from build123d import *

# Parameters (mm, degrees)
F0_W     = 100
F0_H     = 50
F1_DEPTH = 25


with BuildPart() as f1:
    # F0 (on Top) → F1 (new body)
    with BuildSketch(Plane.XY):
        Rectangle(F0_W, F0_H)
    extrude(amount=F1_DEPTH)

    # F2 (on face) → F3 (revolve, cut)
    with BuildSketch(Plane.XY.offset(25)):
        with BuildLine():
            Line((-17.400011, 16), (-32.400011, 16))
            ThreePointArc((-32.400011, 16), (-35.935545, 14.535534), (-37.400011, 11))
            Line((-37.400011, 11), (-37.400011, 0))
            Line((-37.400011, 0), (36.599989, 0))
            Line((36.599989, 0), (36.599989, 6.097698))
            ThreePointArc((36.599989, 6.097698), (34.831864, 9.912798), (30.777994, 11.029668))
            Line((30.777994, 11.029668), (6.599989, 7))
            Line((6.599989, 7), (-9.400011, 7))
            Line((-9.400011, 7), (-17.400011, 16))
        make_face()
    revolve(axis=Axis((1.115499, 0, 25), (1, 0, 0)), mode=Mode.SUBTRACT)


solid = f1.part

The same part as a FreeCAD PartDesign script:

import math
import FreeCAD as App
import Part
import Sketcher

V = App.Vector
Q = App.Units.Quantity


def add_polygon(sketch, points):
    """Adds a closed chain of lines whose ends are joined by coincident constraints."""
    first, n = sketch.GeometryCount, len(points)
    for a, b in zip(points, points[1:] + points[:1]):
        sketch.addGeometry(Part.LineSegment(App.Vector(*a, 0), App.Vector(*b, 0)), False)
    for i in range(n):
        sketch.addConstraint(Sketcher.Constraint("Coincident", first + i, 2, first + (i + 1) % n, 1))

doc = App.newDocument("Part")
body = doc.addObject("PartDesign::Body", "Body")

sketch1 = body.newObject("Sketcher::SketchObject", "Sketch")
sketch1.AttachmentSupport = (doc.getObject("XY_Plane"), [""])
sketch1.MapMode = "FlatFace"
add_polygon(sketch1, [(-50, 25), (-50, -25), (50, -25), (50, 25)])
sketch1.addConstraint([
    Sketcher.Constraint("Vertical", 0),
    Sketcher.Constraint("Horizontal", 1),
    Sketcher.Constraint("Vertical", 2),
    Sketcher.Constraint("Horizontal", 3),
    Sketcher.Constraint("Symmetric", 0, 2, 2, 2, -1, 1),
    Sketcher.Constraint("DistanceX", 1, 1, 1, 2, Q("100 mm")),
    Sketcher.Constraint("DistanceY", 0, 2, 0, 1, Q("50 mm")),
])
pad1 = body.newObject("PartDesign::Pad", "Pad")
pad1.Profile = sketch1
pad1.Length = 25

sketch2 = body.newObject("Sketcher::SketchObject", "Sketch001")
sketch2.AttachmentSupport = (doc.getObject("XY_Plane"), [""])
sketch2.MapMode = "FlatFace"
sketch2.AttachmentOffset = App.Placement(V(0, 0, 25), App.Rotation())
sketch2.addGeometry([
    Part.LineSegment(V(-17.4, 16, 0), V(-32.4, 16, 0)),
    Part.ArcOfCircle(Part.Circle(V(-32.4, 11, 0), V(0, 0, 1), 5), math.radians(90), math.radians(180)),
    Part.LineSegment(V(-37.4, 11, 0), V(-37.4, 0, 0)),
    Part.LineSegment(V(-37.4, 0, 0), V(36.6, 0, 0)),
    Part.LineSegment(V(36.6, 0, 0), V(36.6, 6.1, 0)),
    Part.ArcOfCircle(Part.Circle(V(31.6, 6.1, 0), V(0, 0, 1), 5), math.radians(0), math.radians(99)),
    Part.LineSegment(V(30.8, 11, 0), V(6.6, 7, 0)),
    Part.LineSegment(V(6.6, 7, 0), V(-9.4, 7, 0)),
    Part.LineSegment(V(-9.4, 7, 0), V(-17.4, 16, 0)),
], False)
sketch2.addConstraint([
    Sketcher.Constraint("Tangent", 0, 2, 1, 1),
    Sketcher.Constraint("Tangent", 1, 2, 2, 1),
    Sketcher.Constraint("Coincident", 2, 2, 3, 1),
    Sketcher.Constraint("Coincident", 3, 2, 4, 1),
    Sketcher.Constraint("Tangent", 4, 2, 5, 1),
    Sketcher.Constraint("Tangent", 5, 2, 6, 1),
    Sketcher.Constraint("Coincident", 6, 2, 7, 1),
    Sketcher.Constraint("Coincident", 7, 2, 8, 1),
    Sketcher.Constraint("Coincident", 8, 2, 0, 1),
    Sketcher.Constraint("Horizontal", 0),
    Sketcher.Constraint("Vertical", 2),
    Sketcher.Constraint("Horizontal", 3),
    Sketcher.Constraint("Vertical", 4),
    Sketcher.Constraint("Horizontal", 7),
    Sketcher.Constraint("Equal", 1, 5),
    Sketcher.Constraint("PointOnObject", 2, 2, -1),
    Sketcher.Constraint("Radius", 1, Q("5 mm")),
    Sketcher.Constraint("DistanceX", 0, 2, 0, 1, Q("15 mm")),
    Sketcher.Constraint("DistanceX", 3, 1, 3, 2, Q("74 mm")),
    Sketcher.Constraint("DistanceX", 7, 2, 7, 1, Q("16 mm")),
    Sketcher.Constraint("DistanceY", 2, 2, 2, 1, Q("11 mm")),
    Sketcher.Constraint("DistanceY", -1, 1, 6, 2, Q("7 mm")),
    Sketcher.Constraint("DistanceX", 6, 2, 5, 3, Q("25 mm")),
    Sketcher.Constraint("DistanceY", 4, 1, 4, 2, Q("6.097698 mm")),
    Sketcher.Constraint("DistanceX", 1, 3, -1, 1, Q("32.400011 mm")),
])
groove = body.newObject("PartDesign::Groove", "Groove")
groove.Profile = sketch2
groove.ReferenceAxis = (sketch2, ["H_Axis"])
groove.Angle = 360

doc.recompute()
